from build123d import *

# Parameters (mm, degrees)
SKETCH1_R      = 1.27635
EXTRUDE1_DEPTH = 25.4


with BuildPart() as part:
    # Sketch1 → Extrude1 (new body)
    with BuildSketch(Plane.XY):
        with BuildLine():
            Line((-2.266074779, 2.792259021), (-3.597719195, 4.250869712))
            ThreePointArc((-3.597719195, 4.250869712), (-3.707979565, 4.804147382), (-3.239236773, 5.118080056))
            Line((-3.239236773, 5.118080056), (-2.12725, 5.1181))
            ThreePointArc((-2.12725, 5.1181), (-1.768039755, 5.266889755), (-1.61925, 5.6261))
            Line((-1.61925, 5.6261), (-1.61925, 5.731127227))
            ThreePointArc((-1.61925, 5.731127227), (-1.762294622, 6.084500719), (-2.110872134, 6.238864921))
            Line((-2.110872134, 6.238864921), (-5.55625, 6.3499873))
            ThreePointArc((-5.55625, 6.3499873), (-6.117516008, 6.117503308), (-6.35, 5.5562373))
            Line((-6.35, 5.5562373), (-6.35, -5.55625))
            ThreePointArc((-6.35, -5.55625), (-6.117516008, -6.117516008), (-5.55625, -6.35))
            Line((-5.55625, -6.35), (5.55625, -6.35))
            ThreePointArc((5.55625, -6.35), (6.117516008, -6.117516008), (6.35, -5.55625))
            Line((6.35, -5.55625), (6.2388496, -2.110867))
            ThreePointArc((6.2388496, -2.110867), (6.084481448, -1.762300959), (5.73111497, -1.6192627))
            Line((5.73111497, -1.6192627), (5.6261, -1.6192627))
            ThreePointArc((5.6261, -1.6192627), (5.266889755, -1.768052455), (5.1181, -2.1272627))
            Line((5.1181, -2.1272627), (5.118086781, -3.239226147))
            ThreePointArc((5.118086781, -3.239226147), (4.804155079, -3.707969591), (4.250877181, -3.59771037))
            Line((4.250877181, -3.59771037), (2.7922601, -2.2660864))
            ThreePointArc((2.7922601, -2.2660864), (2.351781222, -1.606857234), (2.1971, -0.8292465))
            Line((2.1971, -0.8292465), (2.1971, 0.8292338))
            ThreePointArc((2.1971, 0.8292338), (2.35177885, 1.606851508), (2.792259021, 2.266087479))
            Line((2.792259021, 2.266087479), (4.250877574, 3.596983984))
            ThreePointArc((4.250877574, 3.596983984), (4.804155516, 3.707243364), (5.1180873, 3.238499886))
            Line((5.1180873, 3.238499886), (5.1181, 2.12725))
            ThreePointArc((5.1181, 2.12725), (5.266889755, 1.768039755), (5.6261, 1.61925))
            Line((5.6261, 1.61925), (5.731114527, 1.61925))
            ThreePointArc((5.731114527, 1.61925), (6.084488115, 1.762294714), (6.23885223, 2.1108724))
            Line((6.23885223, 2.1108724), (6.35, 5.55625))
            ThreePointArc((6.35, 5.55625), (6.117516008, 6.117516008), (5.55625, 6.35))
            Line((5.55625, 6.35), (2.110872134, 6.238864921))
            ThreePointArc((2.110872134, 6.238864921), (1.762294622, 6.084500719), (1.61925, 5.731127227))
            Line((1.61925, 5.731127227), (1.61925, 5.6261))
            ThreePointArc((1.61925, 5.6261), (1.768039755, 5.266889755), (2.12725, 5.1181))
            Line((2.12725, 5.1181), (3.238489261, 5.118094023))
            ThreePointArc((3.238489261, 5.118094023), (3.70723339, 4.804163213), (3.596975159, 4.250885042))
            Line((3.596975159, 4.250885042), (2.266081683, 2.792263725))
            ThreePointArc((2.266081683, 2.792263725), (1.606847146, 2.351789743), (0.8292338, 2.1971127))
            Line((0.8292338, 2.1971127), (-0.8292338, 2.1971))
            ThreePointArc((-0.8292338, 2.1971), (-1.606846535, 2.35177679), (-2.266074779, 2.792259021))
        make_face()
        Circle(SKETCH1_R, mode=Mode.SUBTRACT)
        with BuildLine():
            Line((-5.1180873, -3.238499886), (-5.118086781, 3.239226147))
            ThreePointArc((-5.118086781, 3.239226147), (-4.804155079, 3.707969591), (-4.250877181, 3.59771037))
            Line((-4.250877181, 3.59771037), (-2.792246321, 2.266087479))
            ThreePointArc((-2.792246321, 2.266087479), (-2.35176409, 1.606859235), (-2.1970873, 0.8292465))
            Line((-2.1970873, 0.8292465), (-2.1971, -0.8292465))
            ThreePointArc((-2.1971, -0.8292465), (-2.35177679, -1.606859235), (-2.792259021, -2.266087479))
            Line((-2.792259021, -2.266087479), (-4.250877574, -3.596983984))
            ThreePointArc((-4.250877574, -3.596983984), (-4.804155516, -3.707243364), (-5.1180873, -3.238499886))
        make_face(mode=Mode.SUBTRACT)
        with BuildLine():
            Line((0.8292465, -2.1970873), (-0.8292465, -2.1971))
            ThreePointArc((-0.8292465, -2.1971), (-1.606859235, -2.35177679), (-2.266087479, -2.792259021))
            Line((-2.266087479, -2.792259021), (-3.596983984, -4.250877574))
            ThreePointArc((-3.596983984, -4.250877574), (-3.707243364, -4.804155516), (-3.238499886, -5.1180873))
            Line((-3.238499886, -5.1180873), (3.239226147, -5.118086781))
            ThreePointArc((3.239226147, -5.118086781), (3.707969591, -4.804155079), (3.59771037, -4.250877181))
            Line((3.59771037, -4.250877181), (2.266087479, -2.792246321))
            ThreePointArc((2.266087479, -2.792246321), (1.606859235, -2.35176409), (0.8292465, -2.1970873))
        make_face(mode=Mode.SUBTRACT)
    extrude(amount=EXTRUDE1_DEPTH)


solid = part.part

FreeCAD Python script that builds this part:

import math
import FreeCAD as App
import Part
import Sketcher
Q = App.Units.Quantity

doc = App.newDocument("Part")
body = doc.addObject("PartDesign::Body", "Body")

# Sketch on XY plane
sketch1 = body.newObject("Sketcher::SketchObject", "Sketch")
sketch1.AttachmentSupport = (doc.getObject("XY_Plane"), [""])
sketch1.MapMode = "FlatFace"
sketch1.addGeometry(Part.LineSegment(App.Vector(-2.27, 2.79, 0), App.Vector(-3.6, 4.25, 0)), False)
sketch1.addGeometry(Part.ArcOfCircle(Part.Circle(App.Vector(-3.24, 4.61, 0), App.Vector(0, 0, 1), 0.51), math.radians(90), math.radians(225)), False)
sketch1.addGeometry(Part.LineSegment(App.Vector(-3.24, 5.12, 0), App.Vector(-2.13, 5.12, 0)), False)
sketch1.addGeometry(Part.ArcOfCircle(Part.Circle(App.Vector(-2.13, 5.63, 0), App.Vector(0, 0, 1), 0.51), math.radians(-90), math.radians(0)), False)
sketch1.addGeometry(Part.LineSegment(App.Vector(-1.62, 5.63, 0), App.Vector(-1.62, 5.73, 0)), False)
sketch1.addGeometry(Part.ArcOfCircle(Part.Circle(App.Vector(-2.13, 5.73, 0), App.Vector(0, 0, 1), 0.51), math.radians(0), math.radians(88)), False)
sketch1.addGeometry(Part.LineSegment(App.Vector(-2.11, 6.24, 0), App.Vector(-5.56, 6.35, 0)), False)
sketch1.addGeometry(Part.ArcOfCircle(Part.Circle(App.Vector(-5.56, 5.56, 0), App.Vector(0, 0, 1), 0.79), math.radians(90), math.radians(180)), False)
sketch1.addGeometry(Part.LineSegment(App.Vector(-6.35, 5.56, 0), App.Vector(-6.35, -5.56, 0)), False)
sketch1.addGeometry(Part.ArcOfCircle(Part.Circle(App.Vector(-5.56, -5.56, 0), App.Vector(0, 0, 1), 0.79), math.radians(180), math.radians(270)), False)
sketch1.addGeometry(Part.LineSegment(App.Vector(-5.56, -6.35, 0), App.Vector(5.56, -6.35, 0)), False)
sketch1.addGeometry(Part.ArcOfCircle(Part.Circle(App.Vector(5.56, -5.56, 0), App.Vector(0, 0, 1), 0.79), math.radians(-90), math.radians(0)), False)
sketch1.addGeometry(Part.LineSegment(App.Vector(6.35, -5.56, 0), App.Vector(6.24, -2.11, 0)), False)
sketch1.addGeometry(Part.ArcOfCircle(Part.Circle(App.Vector(5.73, -2.13, 0), App.Vector(0, 0, 1), 0.51), math.radians(2), math.radians(90)), False)
sketch1.addGeometry(Part.LineSegment(App.Vector(5.73, -1.62, 0), App.Vector(5.63, -1.62, 0)), False)
sketch1.addGeometry(Part.ArcOfCircle(Part.Circle(App.Vector(5.63, -2.13, 0), App.Vector(0, 0, 1), 0.51), math.radians(90), math.radians(180)), False)
sketch1.addGeometry(Part.LineSegment(App.Vector(5.12, -2.13, 0), App.Vector(5.12, -3.24, 0)), False)
sketch1.addGeometry(Part.ArcOfCircle(Part.Circle(App.Vector(4.61, -3.24, 0), App.Vector(0, 0, 1), 0.51), math.radians(-135), math.radians(0)), False)
sketch1.addGeometry(Part.LineSegment(App.Vector(4.25, -3.6, 0), App.Vector(2.79, -2.27, 0)), False)
sketch1.addGeometry(Part.ArcOfCircle(Part.Circle(App.Vector(4.23, -0.83, 0), App.Vector(0, 0, 1), 2.03), math.radians(-180), math.radians(-135)), False)
sketch1.addGeometry(Part.LineSegment(App.Vector(2.2, -0.83, 0), App.Vector(2.2, 0.83, 0)), False)
sketch1.addGeometry(Part.ArcOfCircle(Part.Circle(App.Vector(4.23, 0.83, 0), App.Vector(0, 0, 1), 2.03), math.radians(135), math.radians(180)), False)
sketch1.addGeometry(Part.LineSegment(App.Vector(2.79, 2.27, 0), App.Vector(4.25, 3.6, 0)), False)
sketch1.addGeometry(Part.ArcOfCircle(Part.Circle(App.Vector(4.61, 3.24, 0), App.Vector(0, 0, 1), 0.51), math.radians(0), math.radians(135)), False)
sketch1.addGeometry(Part.LineSegment(App.Vector(5.12, 3.24, 0), App.Vector(5.12, 2.13, 0)), False)
sketch1.addGeometry(Part.ArcOfCircle(Part.Circle(App.Vector(5.63, 2.13, 0), App.Vector(0, 0, 1), 0.51), math.radians(180), math.radians(270)), False)
sketch1.addGeometry(Part.LineSegment(App.Vector(5.63, 1.62, 0), App.Vector(5.73, 1.62, 0)), False)
sketch1.addGeometry(Part.ArcOfCircle(Part.Circle(App.Vector(5.73, 2.13, 0), App.Vector(0, 0, 1), 0.51), math.radians(-90), math.radians(-2)), False)
sketch1.addGeometry(Part.LineSegment(App.Vector(6.24, 2.11, 0), App.Vector(6.35, 5.56, 0)), False)
sketch1.addGeometry(Part.ArcOfCircle(Part.Circle(App.Vector(5.56, 5.56, 0), App.Vector(0, 0, 1), 0.79), math.radians(0), math.radians(90)), False)
sketch1.addGeometry(Part.LineSegment(App.Vector(5.56, 6.35, 0), App.Vector(2.11, 6.24, 0)), False)
sketch1.addGeometry(Part.ArcOfCircle(Part.Circle(App.Vector(2.13, 5.73, 0), App.Vector(0, 0, 1), 0.51), math.radians(92), math.radians(180)), False)
sketch1.addGeometry(Part.LineSegment(App.Vector(1.62, 5.73, 0), App.Vector(1.62, 5.63, 0)), False)
sketch1.addGeometry(Part.ArcOfCircle(Part.Circle(App.Vector(2.13, 5.63, 0), App.Vector(0, 0, 1), 0.51), math.radians(180), math.radians(270)), False)
sketch1.addGeometry(Part.LineSegment(App.Vector(2.13, 5.12, 0), App.Vector(3.24, 5.12, 0)), False)
sketch1.addGeometry(Part.ArcOfCircle(Part.Circle(App.Vector(3.24, 4.61, 0), App.Vector(0, 0, 1), 0.51), math.radians(-45), math.radians(90)), False)
sketch1.addGeometry(Part.LineSegment(App.Vector(3.6, 4.25, 0), App.Vector(2.27, 2.79, 0)), False)
sketch1.addGeometry(Part.ArcOfCircle(Part.Circle(App.Vector(0.83, 4.23, 0), App.Vector(0, 0, 1), 2.03), math.radians(-90), math.radians(-45)), False)
sketch1.addGeometry(Part.LineSegment(App.Vector(0.83, 2.2, 0), App.Vector(-0.83, 2.2, 0)), False)
sketch1.addGeometry(Part.ArcOfCircle(Part.Circle(App.Vector(-0.83, 4.23, 0), App.Vector(0, 0, 1), 2.03), math.radians(-135), math.radians(-90)), False)
sketch1.addGeometry(Part.LineSegment(App.Vector(-0.83, -2.2, 0), App.Vector(0.83, -2.2, 0)), False)
sketch1.addGeometry(Part.ArcOfCircle(Part.Circle(App.Vector(0.83, -4.23, 0), App.Vector(0, 0, 1), 2.03), math.radians(45), math.radians(90)), False)
sketch1.addGeometry(Part.LineSegment(App.Vector(2.27, -2.79, 0), App.Vector(3.6, -4.25, 0)), False)
sketch1.addGeometry(Part.ArcOfCircle(Part.Circle(App.Vector(3.24, -4.61, 0), App.Vector(0, 0, 1), 0.51), math.radians(-90), math.radians(45)), False)
sketch1.addGeometry(Part.LineSegment(App.Vector(3.24, -5.12, 0), App.Vector(-3.24, -5.12, 0)), False)
sketch1.addGeometry(Part.ArcOfCircle(Part.Circle(App.Vector(-3.24, -4.61, 0), App.Vector(0, 0, 1), 0.51), math.radians(135), math.radians(270)), False)
sketch1.addGeometry(Part.LineSegment(App.Vector(-3.6, -4.25, 0), App.Vector(-2.27, -2.79, 0)), False)
sketch1.addGeometry(Part.ArcOfCircle(Part.Circle(App.Vector(-0.83, -4.23, 0), App.Vector(0, 0, 1), 2.03), math.radians(90), math.radians(135)), False)
sketch1.addGeometry(Part.ArcOfCircle(Part.Circle(App.Vector(-4.61, -3.24, 0), App.Vector(0, 0, 1), 0.51), math.radians(-180), math.radians(-45)), False)
sketch1.addGeometry(Part.LineSegment(App.Vector(-5.12, -3.24, 0), App.Vector(-5.12, 3.24, 0)), False)
sketch1.addGeometry(Part.ArcOfCircle(Part.Circle(App.Vector(-4.61, 3.24, 0), App.Vector(0, 0, 1), 0.51), math.radians(45), math.radians(180)), False)
sketch1.addGeometry(Part.LineSegment(App.Vector(-4.25, 3.6, 0), App.Vector(-2.79, 2.27, 0)), False)
sketch1.addGeometry(Part.ArcOfCircle(Part.Circle(App.Vector(-4.23, 0.83, 0), App.Vector(0, 0, 1), 2.03), math.radians(0), math.radians(45)), False)
sketch1.addGeometry(Part.LineSegment(App.Vector(-2.2, 0.83, 0), App.Vector(-2.2, -0.83, 0)), False)
sketch1.addGeometry(Part.ArcOfCircle(Part.Circle(App.Vector(-4.23, -0.83, 0), App.Vector(0, 0, 1), 2.03), math.radians(-45), math.radians(0)), False)
sketch1.addGeometry(Part.LineSegment(App.Vector(-2.79, -2.27, 0), App.Vector(-4.25, -3.6, 0)), False)
sketch1.addGeometry(Part.Circle(App.Vector(0, 0, 0), App.Vector(0, 0, 1), 1.28), False)
sketch1.addConstraint(Sketcher.Constraint("Coincident", 0, 2, 1, 2))
sketch1.addConstraint(Sketcher.Constraint("Coincident", 1, 1, 2, 1))
sketch1.addConstraint(Sketcher.Constraint("Coincident", 2, 2, 3, 1))
sketch1.addConstraint(Sketcher.Constraint("Tangent", 3, 2, 4, 1))
sketch1.addConstraint(Sketcher.Constraint("Coincident", 4, 2, 5, 1))
sketch1.addConstraint(Sketcher.Constraint("Coincident", 5, 2, 6, 1))
sketch1.addConstraint(Sketcher.Constraint("Coincident", 6, 2, 7, 1))
sketch1.addConstraint(Sketcher.Constraint("Tangent", 7, 2, 8, 1))
sketch1.addConstraint(Sketcher.Constraint("Tangent", 8, 2, 9, 1))
sketch1.addConstraint(Sketcher.Constraint("Tangent", 9, 2, 10, 1))
sketch1.addConstraint(Sketcher.Constraint("Tangent", 10, 2, 11, 1))
sketch1.addConstraint(Sketcher.Constraint("Coincident", 11, 2, 12, 1))
sketch1.addConstraint(Sketcher.Constraint("Coincident", 12, 2, 13, 1))
sketch1.addConstraint(Sketcher.Constraint("Coincident", 13, 2, 14, 1))
sketch1.addConstraint(Sketcher.Constraint("Tangent", 14, 2, 15, 1))
sketch1.addConstraint(Sketcher.Constraint("Coincident", 15, 2, 16, 1))
sketch1.addConstraint(Sketcher.Constraint("Coincident", 16, 2, 17, 2))
sketch1.addConstraint(Sketcher.Constraint("Coincident", 17, 1, 18, 1))
sketch1.addConstraint(Sketcher.Constraint("Coincident", 18, 2, 19, 2))
sketch1.addConstraint(Sketcher.Constraint("Coincident", 19, 1, 20, 1))
sketch1.addConstraint(Sketcher.Constraint("Coincident", 20, 2, 21, 2))
sketch1.addConstraint(Sketcher.Constraint("Coincident", 21, 1, 22, 1))
sketch1.addConstraint(Sketcher.Constraint("Coincident", 22, 2, 23, 2))
sketch1.addConstraint(Sketcher.Constraint("Coincident", 23, 1, 24, 1))
sketch1.addConstraint(Sketcher.Constraint("Coincident", 24, 2, 25, 1))
sketch1.addConstraint(Sketcher.Constraint("Tangent", 25, 2, 26, 1))
sketch1.addConstraint(Sketcher.Constraint("Coincident", 26, 2, 27, 1))
sketch1.addConstraint(Sketcher.Constraint("Coincident", 27, 2, 28, 1))
sketch1.addConstraint(Sketcher.Constraint("Coincident", 28, 2, 29, 1))
sketch1.addConstraint(Sketcher.Constraint("Coincident", 29, 2, 30, 1))
sketch1.addConstraint(Sketcher.Constraint("Tangent", 30, 2, 31, 1))
sketch1.addConstraint(Sketcher.Constraint("Coincident", 31, 2, 32, 1))
sketch1.addConstraint(Sketcher.Constraint("Tangent", 32, 2, 33, 1))
sketch1.addConstraint(Sketcher.Constraint("Coincident", 33, 2, 34, 1))
sketch1.addConstraint(Sketcher.Constraint("Coincident", 34, 2, 35, 2))
sketch1.addConstraint(Sketcher.Constraint("Coincident", 35, 1, 36, 1))
sketch1.addConstraint(Sketcher.Constraint("Coincident", 36, 2, 37, 2))
sketch1.addConstraint(Sketcher.Constraint("Tangent", 37, 1, 38, 1))
sketch1.addConstraint(Sketcher.Constraint("Coincident", 38, 2, 39, 2))
sketch1.addConstraint(Sketcher.Constraint("Coincident", 39, 1, 0, 1))
sketch1.addConstraint(Sketcher.Constraint("Coincident", 40, 2, 41, 2))
sketch1.addConstraint(Sketcher.Constraint("Coincident", 41, 1, 42, 1))
sketch1.addConstraint(Sketcher.Constraint("Coincident", 42, 2, 43, 2))
sketch1.addConstraint(Sketcher.Constraint("Coincident", 43, 1, 44, 1))
sketch1.addConstraint(Sketcher.Constraint("Coincident", 44, 2, 45, 2))
sketch1.addConstraint(Sketcher.Constraint("Coincident", 45, 1, 46, 1))
sketch1.addConstraint(Sketcher.Constraint("Coincident", 46, 2, 47, 2))
sketch1.addConstraint(Sketcher.Constraint("Coincident", 47, 1, 40, 1))
sketch1.addConstraint(Sketcher.Constraint("Coincident", 48, 1, 49, 1))
sketch1.addConstraint(Sketcher.Constraint("Coincident", 49, 2, 50, 2))
sketch1.addConstraint(Sketcher.Constraint("Coincident", 50, 1, 51, 1))
sketch1.addConstraint(Sketcher.Constraint("Coincident", 51, 2, 52, 2))
sketch1.addConstraint(Sketcher.Constraint("Coincident", 52, 1, 53, 1))
sketch1.addConstraint(Sketcher.Constraint("Coincident", 53, 2, 54, 2))
sketch1.addConstraint(Sketcher.Constraint("Coincident", 54, 1, 55, 1))
sketch1.addConstraint(Sketcher.Constraint("Coincident", 55, 2, 48, 2))
sketch1.addConstraint(Sketcher.Constraint("Vertical", 4))
sketch1.addConstraint(Sketcher.Constraint("Vertical", 8))
sketch1.addConstraint(Sketcher.Constraint("Horizontal", 10))
sketch1.addConstraint(Sketcher.Constraint("Horizontal", 14))
sketch1.addConstraint(Sketcher.Constraint("Vertical", 20))
sketch1.addConstraint(Sketcher.Constraint("Horizontal", 26))
sketch1.addConstraint(Sketcher.Constraint("Vertical", 32))
sketch1.addConstraint(Sketcher.Constraint("Horizontal", 44))
sketch1.addConstraint(Sketcher.Constraint("Vertical", 49))
sketch1.addConstraint(Sketcher.Constraint("Coincident", 56, 3, -1, 1))
sketch1.addConstraint(Sketcher.Constraint("Equal", 1, 3))
sketch1.addConstraint(Sketcher.Constraint("Equal", 3, 5))
sketch1.addConstraint(Sketcher.Constraint("Equal", 7, 9))
sketch1.addConstraint(Sketcher.Constraint("Equal", 9, 11))
sketch1.addConstraint(Sketcher.Constraint("Equal", 5, 15))
sketch1.addConstraint(Sketcher.Constraint("Equal", 15, 17))
sketch1.addConstraint(Sketcher.Constraint("Equal", 17, 23))
sketch1.addConstraint(Sketcher.Constraint("Equal", 23, 25))
sketch1.addConstraint(Sketcher.Constraint("Equal", 25, 27))
sketch1.addConstraint(Sketcher.Constraint("Equal", 11, 29))
sketch1.addConstraint(Sketcher.Constraint("Equal", 27, 31))
sketch1.addConstraint(Sketcher.Constraint("Equal", 31, 33))
sketch1.addConstraint(Sketcher.Constraint("Equal", 33, 35))
sketch1.addConstraint(Sketcher.Constraint("Equal", 39, 41))
sketch1.addConstraint(Sketcher.Constraint("Equal", 35, 43))
sketch1.addConstraint(Sketcher.Constraint("Equal", 43, 45))
sketch1.addConstraint(Sketcher.Constraint("Equal", 41, 47))
sketch1.addConstraint(Sketcher.Constraint("Equal", 45, 48))
sketch1.addConstraint(Sketcher.Constraint("Equal", 48, 50))
sketch1.addConstraint(Sketcher.Constraint("Equal", 47, 52))
sketch1.addConstraint(Sketcher.Constraint("Equal", 52, 54))
sketch1.addConstraint(Sketcher.Constraint("Symmetric", 9, 3, 29, 3, -1, 1))
sketch1.addConstraint(Sketcher.Constraint("Symmetric", 23, 3, 48, 3, -1, 1))
sketch1.addConstraint(Sketcher.Constraint("Symmetric", 17, 3, 50, 3, -1, 1))
sketch1.addConstraint(Sketcher.Constraint("Symmetric", 36, 2, 46, 2, -1, 1))
sketch1.addConstraint(Sketcher.Constraint("Symmetric", 21, 1, 54, 1, -1, 1))
sketch1.addConstraint(Sketcher.Constraint("Symmetric", 5, 3, 31, 3, -2))
sketch1.addConstraint(Sketcher.Constraint("Symmetric", 8, 2, 11, 2, -2))
sketch1.addConstraint(Sketcher.Constraint("Symmetric", 2, 2, 33, 2, -2))
sketch1.addConstraint(Sketcher.Constraint("Symmetric", 36, 2, 39, 1, -2))
sketch1.addConstraint(Sketcher.Constraint("Symmetric", 19, 1, 53, 2, -2))
sketch1.addConstraint(Sketcher.Constraint("Symmetric", 18, 2, 54, 1, -2))
sketch1.addConstraint(Sketcher.Constraint("Symmetric", 13, 3, 27, 3, -1))
sketch1.addConstraint(Sketcher.Constraint("Symmetric", 12, 2, 27, 2, -1))
sketch1.addConstraint(Sketcher.Constraint("Parallel", 38, 40))
sketch1.addConstraint(Sketcher.Constraint("Parallel", 22, 55))
sketch1.addConstraint(Sketcher.Constraint("Horizontal", 31, 3, 4, 2))
sketch1.addConstraint(Sketcher.Constraint("Horizontal", 54, 3, 19, 1))
sketch1.addConstraint(Sketcher.Constraint("Horizontal", 50, 3, 23, 1))
sketch1.addConstraint(Sketcher.Constraint("Horizontal", 27, 3, 24, 2))
sketch1.addConstraint(Sketcher.Constraint("Horizontal", 29, 3, 28, 2))
sketch1.addConstraint(Sketcher.Constraint("Horizontal", 5, 2, 30, 2))
sketch1.addConstraint(Sketcher.Constraint("Horizontal", 4, 2, 31, 2))
sketch1.addConstraint(Sketcher.Constraint("Horizontal", 42, 2, 45, 1))
sketch1.addConstraint(Sketcher.Constraint("Horizontal", 17, 3, 48, 1))
sketch1.addConstraint(Sketcher.Constraint("Horizontal", 21, 1, 51, 2))
sketch1.addConstraint(Sketcher.Constraint("Vertical", 15, 3, 25, 3))
sketch1.addConstraint(Sketcher.Constraint("Vertical", 5, 3, 2, 2))
sketch1.addConstraint(Sketcher.Constraint("Vertical", 9, 3, 6, 2))
sketch1.addConstraint(Sketcher.Constraint("Vertical", 27, 3, 13, 2))
sketch1.addConstraint(Sketcher.Constraint("Vertical", 17, 1, 22, 2))
sketch1.addConstraint(Sketcher.Constraint("Vertical", 13, 2, 26, 2))
sketch1.addConstraint(Sketcher.Constraint("Vertical", 10, 2, 29, 2))
sketch1.addConstraint(Sketcher.Constraint("Vertical", 39, 3, 38, 2))
sketch1.addConstraint(Sketcher.Constraint("Vertical", 41, 3, 40, 2))
sketch1.addConstraint(Sketcher.Constraint("Vertical", 50, 1, 55, 2))
sketch1.addConstraint(Sketcher.Constraint("Equal", 44, 49))
sketch1.addConstraint(Sketcher.Constraint("Equal", 6, 28))
sketch1.addConstraint(Sketcher.Constraint("Equal", 28, 30))
sketch1.addConstraint(Sketcher.Constraint("Equal", 22, 36))
sketch1.addConstraint(Sketcher.Constraint("Equal", 0, 42))
sketch1.addConstraint(Sketcher.Constraint("Equal", 36, 46))
sketch1.addConstraint(Sketcher.Constraint("Equal", 42, 51))
sketch1.addConstraint(Sketcher.Constraint("Equal", 40, 53))
sketch1.addConstraint(Sketcher.Constraint("Radius", 1, Q("0.02 in")))
sketch1.addConstraint(Sketcher.Constraint("Radius", 39, Q("0.08 in")))
sketch1.addConstraint(Sketcher.Constraint("Radius", 7, Q("0.03125 in")))
sketch1.addConstraint(Sketcher.Constraint("Diameter", 56, Q("0.1005 in")))
sketch1.addConstraint(Sketcher.Constraint("DistanceX", 10, 1, 10, 2, Q("0.4375 in")))
sketch1.addConstraint(Sketcher.Constraint("DistanceY", 9, 2, -1, 1, Q("0.25 in")))
sketch1.addConstraint(Sketcher.Constraint("Radius", 19, 2.032049))
sketch1.addConstraint(Sketcher.Constraint("Radius", 21, 2.032059))
sketch1.addConstraint(Sketcher.Constraint("Radius", 37, 2.032069))
sketch1.addConstraint(Sketcher.Constraint("DistanceY", -1, 1, 3, 3, Q("0.2215 in")))
sketch1.addConstraint(Sketcher.Constraint("DistanceX", -1, 1, 15, 3, Q("0.2215 in")))
sketch1.addConstraint(Sketcher.Constraint("DistanceY", 17, 3, -1, 1, Q("0.1275 in")))
sketch1.addConstraint(Sketcher.Constraint("DistanceY", -1, 1, 39, 3, Q("0.1665 in")))
sketch1.addConstraint(Sketcher.Constraint("DistanceX", -1, 1, 43, 3, Q("0.1275 in")))
sketch1.addConstraint(Sketcher.Constraint("DistanceY", 47, 3, -1, 1, Q("0.1665 in")))
sketch1.addConstraint(Sketcher.Constraint("DistanceX", 54, 3, -1, 1, Q("0.1665 in")))
sketch1.addConstraint(Sketcher.Constraint("DistanceX", 44, 2, -1, 1, Q("0.1275 in")))
sketch1.addConstraint(Sketcher.Constraint("DistanceY", 20, 1, 20, 2, 1.65848))
sketch1.addConstraint(Sketcher.Constraint("Distance", 0, 1.97505))
sketch1.addConstraint(Sketcher.Constraint("Distance", 6, 3.447169))
sketch1.addConstraint(Sketcher.Constraint("Distance", 18, 1.975041))
sketch1.addConstraint(Sketcher.Constraint("Distance", 22, 1.974551))
sketch1.addConstraint(Sketcher.Constraint("Distance", 24, 1.11125))
sketch1.addConstraint(Sketcher.Constraint("Distance", 34, 1.111239))
sketch1.addConstraint(Sketcher.Constraint("DistanceX", 14, 2, 14, 1, 0.105015))
sketch1.addConstraint(Sketcher.Constraint("DistanceX", 44, 2, 44, 1, 6.477726))
sketch1.addConstraint(Sketcher.Constraint("DistanceY", 4, 1, 4, 2, 0.105027))
sketch1.addConstraint(Sketcher.Constraint("DistanceX", 1, 3, -1, 1, 3.23851))
sketch1.addConstraint(Sketcher.Constraint("DistanceY", -1, 1, 1, 3, 4.610081))
sketch1.addConstraint(Sketcher.Constraint("DistanceX", -1, 1, 37, 3, 0.82922))
sketch1.addConstraint(Sketcher.Constraint("DistanceY", -1, 1, 37, 3, 4.229182))
sketch1.addConstraint(Sketcher.Constraint("DistanceX", 0, 2, -1, 1, 3.597719))
sketch1.addConstraint(Sketcher.Constraint("DistanceY", 17, 1, -1, 1, 3.59771))
sketch1.addConstraint(Sketcher.Constraint("DistanceX", -1, 1, 18, 2, 2.79226))
sketch1.addConstraint(Sketcher.Constraint("DistanceX", -1, 1, 42, 2, 3.59771))
sketch1.addConstraint(Sketcher.Constraint("Distance", 2, 1.111987))
sketch1.addConstraint(Sketcher.Constraint("Distance", 16, 1.111963))
sketch1.addConstraint(Sketcher.Constraint("Distance", 40, 1.658493))
sketch1.addConstraint(Sketcher.Constraint("DistanceX", -1, 1, 17, 3, 4.610087))
sketch1.addConstraint(Sketcher.Constraint("DistanceX", -1, 1, 35, 3, 3.237764))
sketch1.addConstraint(Sketcher.Constraint("DistanceY", -1, 1, 35, 3, 4.610095))
sketch1.addConstraint(Sketcher.Constraint("DistanceX", -1, 1, 41, 3, 0.829247))
sketch1.addConstraint(Sketcher.Constraint("DistanceY", 43, 3, -1, 1, 4.610087))
sketch1.addConstraint(Sketcher.Constraint("DistanceX", 52, 3, -1, 1, 4.229087))
sketch1.addConstraint(Sketcher.Constraint("DistanceY", 15, 2, -1, 1, 2.127263))
pad1 = body.newObject("PartDesign::Pad", "Pad")
pad1.Profile = sketch1
pad1.Length = Q("1 in")

doc.recompute()
